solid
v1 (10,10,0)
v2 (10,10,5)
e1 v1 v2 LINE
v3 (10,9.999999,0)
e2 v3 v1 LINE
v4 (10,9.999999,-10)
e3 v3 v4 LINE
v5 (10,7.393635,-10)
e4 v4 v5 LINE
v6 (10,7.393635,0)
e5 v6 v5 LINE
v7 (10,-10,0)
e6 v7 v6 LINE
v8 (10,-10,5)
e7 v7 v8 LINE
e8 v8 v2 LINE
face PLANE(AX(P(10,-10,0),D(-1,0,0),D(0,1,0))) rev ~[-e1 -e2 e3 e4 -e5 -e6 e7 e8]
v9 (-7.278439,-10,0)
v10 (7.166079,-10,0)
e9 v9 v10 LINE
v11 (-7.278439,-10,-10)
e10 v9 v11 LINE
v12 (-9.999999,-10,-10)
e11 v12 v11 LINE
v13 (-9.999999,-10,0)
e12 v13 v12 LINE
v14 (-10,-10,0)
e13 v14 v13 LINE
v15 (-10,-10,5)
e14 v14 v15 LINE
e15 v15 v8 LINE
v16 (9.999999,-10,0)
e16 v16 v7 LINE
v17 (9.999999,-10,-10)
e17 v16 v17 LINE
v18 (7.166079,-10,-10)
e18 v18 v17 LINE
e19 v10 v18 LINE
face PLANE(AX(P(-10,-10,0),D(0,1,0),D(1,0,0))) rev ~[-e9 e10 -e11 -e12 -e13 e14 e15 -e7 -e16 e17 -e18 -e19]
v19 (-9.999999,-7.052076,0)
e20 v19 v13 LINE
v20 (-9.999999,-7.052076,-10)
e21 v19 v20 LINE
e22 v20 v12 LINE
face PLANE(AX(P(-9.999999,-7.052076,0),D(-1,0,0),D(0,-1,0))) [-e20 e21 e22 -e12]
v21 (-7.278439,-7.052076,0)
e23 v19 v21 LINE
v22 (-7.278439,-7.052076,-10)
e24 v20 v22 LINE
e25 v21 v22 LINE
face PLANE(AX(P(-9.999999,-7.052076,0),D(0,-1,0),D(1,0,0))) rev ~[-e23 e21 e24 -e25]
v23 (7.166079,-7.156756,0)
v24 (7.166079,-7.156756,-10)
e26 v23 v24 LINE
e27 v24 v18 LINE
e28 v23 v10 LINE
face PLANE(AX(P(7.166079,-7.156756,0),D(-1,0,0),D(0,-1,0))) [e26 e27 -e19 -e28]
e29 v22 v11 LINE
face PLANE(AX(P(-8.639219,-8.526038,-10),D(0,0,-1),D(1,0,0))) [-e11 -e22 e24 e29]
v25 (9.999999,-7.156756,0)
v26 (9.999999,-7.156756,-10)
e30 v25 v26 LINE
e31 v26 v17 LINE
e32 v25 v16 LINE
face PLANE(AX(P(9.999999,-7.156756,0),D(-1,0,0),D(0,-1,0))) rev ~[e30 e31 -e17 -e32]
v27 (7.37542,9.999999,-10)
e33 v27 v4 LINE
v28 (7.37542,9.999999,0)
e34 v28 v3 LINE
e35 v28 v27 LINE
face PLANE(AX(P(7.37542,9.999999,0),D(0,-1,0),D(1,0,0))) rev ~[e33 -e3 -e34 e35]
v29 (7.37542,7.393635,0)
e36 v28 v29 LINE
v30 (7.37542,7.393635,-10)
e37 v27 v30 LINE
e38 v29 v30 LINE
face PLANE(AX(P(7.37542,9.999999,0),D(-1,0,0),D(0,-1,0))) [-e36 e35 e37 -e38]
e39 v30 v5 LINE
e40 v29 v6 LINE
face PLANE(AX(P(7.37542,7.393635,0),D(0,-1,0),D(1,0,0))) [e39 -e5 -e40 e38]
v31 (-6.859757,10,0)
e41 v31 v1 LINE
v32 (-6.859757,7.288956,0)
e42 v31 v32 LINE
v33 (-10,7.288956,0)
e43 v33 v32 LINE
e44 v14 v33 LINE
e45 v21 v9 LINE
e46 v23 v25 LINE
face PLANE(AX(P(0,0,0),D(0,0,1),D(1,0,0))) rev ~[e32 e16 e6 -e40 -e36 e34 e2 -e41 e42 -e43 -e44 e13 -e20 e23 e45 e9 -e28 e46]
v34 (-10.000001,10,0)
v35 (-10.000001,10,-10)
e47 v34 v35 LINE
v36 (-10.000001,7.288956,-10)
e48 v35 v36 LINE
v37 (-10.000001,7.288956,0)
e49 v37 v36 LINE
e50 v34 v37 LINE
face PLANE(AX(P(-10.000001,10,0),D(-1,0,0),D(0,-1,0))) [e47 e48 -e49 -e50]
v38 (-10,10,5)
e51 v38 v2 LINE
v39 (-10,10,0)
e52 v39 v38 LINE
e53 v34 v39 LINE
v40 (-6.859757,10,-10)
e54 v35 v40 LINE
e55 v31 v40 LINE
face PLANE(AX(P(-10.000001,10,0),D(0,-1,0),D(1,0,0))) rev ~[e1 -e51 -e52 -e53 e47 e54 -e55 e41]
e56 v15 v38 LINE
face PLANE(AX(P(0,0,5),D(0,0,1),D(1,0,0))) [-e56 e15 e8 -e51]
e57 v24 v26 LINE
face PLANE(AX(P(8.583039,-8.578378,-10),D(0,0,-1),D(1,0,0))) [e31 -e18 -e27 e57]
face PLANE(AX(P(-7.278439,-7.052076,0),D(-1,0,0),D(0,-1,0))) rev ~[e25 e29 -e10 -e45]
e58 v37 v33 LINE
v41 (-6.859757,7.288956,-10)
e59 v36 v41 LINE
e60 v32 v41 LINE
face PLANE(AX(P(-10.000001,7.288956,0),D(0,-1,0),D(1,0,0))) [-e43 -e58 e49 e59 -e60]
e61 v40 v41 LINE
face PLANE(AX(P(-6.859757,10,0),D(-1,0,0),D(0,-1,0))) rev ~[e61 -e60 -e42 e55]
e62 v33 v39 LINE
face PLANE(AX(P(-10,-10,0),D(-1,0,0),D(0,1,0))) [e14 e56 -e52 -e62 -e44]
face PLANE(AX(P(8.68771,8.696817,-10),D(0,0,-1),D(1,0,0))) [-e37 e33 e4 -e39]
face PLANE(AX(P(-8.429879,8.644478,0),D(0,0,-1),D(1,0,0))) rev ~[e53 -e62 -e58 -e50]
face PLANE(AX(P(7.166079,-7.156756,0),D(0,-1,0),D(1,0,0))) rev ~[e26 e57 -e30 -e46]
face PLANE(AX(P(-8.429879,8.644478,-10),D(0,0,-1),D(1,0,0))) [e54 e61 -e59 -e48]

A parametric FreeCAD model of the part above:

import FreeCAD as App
import Part
import Sketcher
from FreeCAD import Vector
Q = App.Units.Quantity

doc = App.newDocument("Part")
body = doc.addObject("PartDesign::Body", "Body")

sketch1 = doc.addObject("Sketcher::SketchObject", "Sketch")
body.addObject(sketch1)
sketch1.AttachmentSupport = (doc.XY_Plane, [""])
sketch1.MapMode = "FlatFace"
sketch1.addGeometry([
    Part.LineSegment(Vector(-10, 10, 0), Vector(-10, -10, 0)),
    Part.LineSegment(Vector(-10, -10, 0), Vector(10, -10, 0)),
    Part.LineSegment(Vector(10, -10, 0), Vector(10, 10, 0)),
    Part.LineSegment(Vector(10, 10, 0), Vector(-10, 10, 0)),
], False)
sketch1.addConstraint([
    Sketcher.Constraint("Coincident", 0, 2, 1, 1),
    Sketcher.Constraint("Coincident", 1, 2, 2, 1),
    Sketcher.Constraint("Coincident", 2, 2, 3, 1),
    Sketcher.Constraint("Coincident", 3, 2, 0, 1),
    Sketcher.Constraint("Vertical", 0),
    Sketcher.Constraint("Horizontal", 1),
    Sketcher.Constraint("Vertical", 2),
    Sketcher.Constraint("Horizontal", 3),
    Sketcher.Constraint("Symmetric", 0, 2, 2, 2, -1, 1),
    Sketcher.Constraint("Equal", 3, 0),
    Sketcher.Constraint("DistanceX", 1, 1, 1, 2, Q("20 mm")),
])
pad1 = doc.addObject("PartDesign::Pad", "Pad")
body.addObject(pad1)
pad1.Profile = sketch1
pad1.Length = 5

sketch2 = doc.addObject("Sketcher::SketchObject", "Sketch001")
body.addObject(sketch2)
sketch2.AttachmentSupport = (doc.XY_Plane, [""])
sketch2.MapMode = "FlatFace"
sketch2.addGeometry([
    Part.LineSegment(Vector(-10, -10, 0), Vector(-10, -7.1, 0)),
    Part.LineSegment(Vector(-10, -7.1, 0), Vector(-7.3, -7.1, 0)),
    Part.LineSegment(Vector(-7.3, -7.1, 0), Vector(-7.3, -10, 0)),
    Part.LineSegment(Vector(-7.3, -10, 0), Vector(-10, -10, 0)),
    Part.LineSegment(Vector(7.2, -10, 0), Vector(7.2, -7.2, 0)),
    Part.LineSegment(Vector(7.2, -7.2, 0), Vector(10, -7.2, 0)),
    Part.LineSegment(Vector(10, -7.2, 0), Vector(10, -10, 0)),
    Part.LineSegment(Vector(10, -10, 0), Vector(7.2, -10, 0)),
    Part.LineSegment(Vector(7.4, 7.4, 0), Vector(7.4, 10, 0)),
    Part.LineSegment(Vector(7.4, 10, 0), Vector(10, 10, 0)),
    Part.LineSegment(Vector(10, 10, 0), Vector(10, 7.4, 0)),
    Part.LineSegment(Vector(10, 7.4, 0), Vector(7.4, 7.4, 0)),
    Part.LineSegment(Vector(-10, 7.3, 0), Vector(-10, 10, 0)),
    Part.LineSegment(Vector(-10, 10, 0), Vector(-6.9, 10, 0)),
    Part.LineSegment(Vector(-6.9, 10, 0), Vector(-6.9, 7.3, 0)),
    Part.LineSegment(Vector(-6.9, 7.3, 0), Vector(-10, 7.3, 0)),
], False)
sketch2.addConstraint([
    Sketcher.Constraint("Coincident", 0, 2, 1, 1),
    Sketcher.Constraint("Coincident", 1, 2, 2, 1),
    Sketcher.Constraint("Coincident", 2, 2, 3, 1),
    Sketcher.Constraint("Coincident", 3, 2, 0, 1),
    Sketcher.Constraint("Coincident", 4, 2, 5, 1),
    Sketcher.Constraint("Coincident", 5, 2, 6, 1),
    Sketcher.Constraint("Coincident", 6, 2, 7, 1),
    Sketcher.Constraint("Coincident", 7, 2, 4, 1),
    Sketcher.Constraint("Coincident", 8, 2, 9, 1),
    Sketcher.Constraint("Coincident", 9, 2, 10, 1),
    Sketcher.Constraint("Coincident", 10, 2, 11, 1),
    Sketcher.Constraint("Coincident", 11, 2, 8, 1),
    Sketcher.Constraint("Coincident", 12, 2, 13, 1),
    Sketcher.Constraint("Coincident", 13, 2, 14, 1),
    Sketcher.Constraint("Coincident", 14, 2, 15, 1),
    Sketcher.Constraint("Coincident", 15, 2, 12, 1),
    Sketcher.Constraint("Vertical", 0),
    Sketcher.Constraint("Horizontal", 1),
    Sketcher.Constraint("Vertical", 2),
    Sketcher.Constraint("Horizontal", 3),
    Sketcher.Constraint("Vertical", 4),
    Sketcher.Constraint("Horizontal", 5),
    Sketcher.Constraint("Vertical", 6),
    Sketcher.Constraint("Horizontal", 7),
    Sketcher.Constraint("Vertical", 8),
    Sketcher.Constraint("Horizontal", 9),
    Sketcher.Constraint("Vertical", 10),
    Sketcher.Constraint("Horizontal", 11),
    Sketcher.Constraint("Vertical", 12),
    Sketcher.Constraint("Horizontal", 13),
    Sketcher.Constraint("Vertical", 14),
    Sketcher.Constraint("Horizontal", 15),
    Sketcher.Constraint("Symmetric", 3, 2, 9, 2, -1, 1),
    Sketcher.Constraint("Symmetric", 6, 2, 12, 2, -1, 1),
    Sketcher.Constraint("Symmetric", 3, 2, 6, 2, -2),
    Sketcher.Constraint("DistanceX", 0, 2, -1, 1, Q("9.999999 mm")),
    Sketcher.Constraint("DistanceY", 2, 2, -1, 1, Q("10 mm")),
    Sketcher.Constraint("DistanceX", 1, 1, 1, 2, Q("2.721561 mm")),
    Sketcher.Constraint("DistanceX", 5, 1, 5, 2, Q("2.833921 mm")),
    Sketcher.Constraint("DistanceX", 9, 1, 9, 2, Q("2.62458 mm")),
    Sketcher.Constraint("DistanceX", 13, 1, 13, 2, Q("3.140243 mm")),
    Sketcher.Constraint("DistanceY", 0, 1, 0, 2, Q("2.947924 mm")),
    Sketcher.Constraint("DistanceY", 4, 1, 4, 2, Q("2.843244 mm")),
    Sketcher.Constraint("DistanceY", 8, 1, 8, 2, Q("2.606365 mm")),
    Sketcher.Constraint("DistanceY", 12, 1, 12, 2, Q("2.711044 mm")),
])
pad2 = doc.addObject("PartDesign::Pad", "Pad001")
body.addObject(pad2)
pad2.Profile = sketch2
pad2.Length = 10
pad2.Reversed = True

doc.recompute()
